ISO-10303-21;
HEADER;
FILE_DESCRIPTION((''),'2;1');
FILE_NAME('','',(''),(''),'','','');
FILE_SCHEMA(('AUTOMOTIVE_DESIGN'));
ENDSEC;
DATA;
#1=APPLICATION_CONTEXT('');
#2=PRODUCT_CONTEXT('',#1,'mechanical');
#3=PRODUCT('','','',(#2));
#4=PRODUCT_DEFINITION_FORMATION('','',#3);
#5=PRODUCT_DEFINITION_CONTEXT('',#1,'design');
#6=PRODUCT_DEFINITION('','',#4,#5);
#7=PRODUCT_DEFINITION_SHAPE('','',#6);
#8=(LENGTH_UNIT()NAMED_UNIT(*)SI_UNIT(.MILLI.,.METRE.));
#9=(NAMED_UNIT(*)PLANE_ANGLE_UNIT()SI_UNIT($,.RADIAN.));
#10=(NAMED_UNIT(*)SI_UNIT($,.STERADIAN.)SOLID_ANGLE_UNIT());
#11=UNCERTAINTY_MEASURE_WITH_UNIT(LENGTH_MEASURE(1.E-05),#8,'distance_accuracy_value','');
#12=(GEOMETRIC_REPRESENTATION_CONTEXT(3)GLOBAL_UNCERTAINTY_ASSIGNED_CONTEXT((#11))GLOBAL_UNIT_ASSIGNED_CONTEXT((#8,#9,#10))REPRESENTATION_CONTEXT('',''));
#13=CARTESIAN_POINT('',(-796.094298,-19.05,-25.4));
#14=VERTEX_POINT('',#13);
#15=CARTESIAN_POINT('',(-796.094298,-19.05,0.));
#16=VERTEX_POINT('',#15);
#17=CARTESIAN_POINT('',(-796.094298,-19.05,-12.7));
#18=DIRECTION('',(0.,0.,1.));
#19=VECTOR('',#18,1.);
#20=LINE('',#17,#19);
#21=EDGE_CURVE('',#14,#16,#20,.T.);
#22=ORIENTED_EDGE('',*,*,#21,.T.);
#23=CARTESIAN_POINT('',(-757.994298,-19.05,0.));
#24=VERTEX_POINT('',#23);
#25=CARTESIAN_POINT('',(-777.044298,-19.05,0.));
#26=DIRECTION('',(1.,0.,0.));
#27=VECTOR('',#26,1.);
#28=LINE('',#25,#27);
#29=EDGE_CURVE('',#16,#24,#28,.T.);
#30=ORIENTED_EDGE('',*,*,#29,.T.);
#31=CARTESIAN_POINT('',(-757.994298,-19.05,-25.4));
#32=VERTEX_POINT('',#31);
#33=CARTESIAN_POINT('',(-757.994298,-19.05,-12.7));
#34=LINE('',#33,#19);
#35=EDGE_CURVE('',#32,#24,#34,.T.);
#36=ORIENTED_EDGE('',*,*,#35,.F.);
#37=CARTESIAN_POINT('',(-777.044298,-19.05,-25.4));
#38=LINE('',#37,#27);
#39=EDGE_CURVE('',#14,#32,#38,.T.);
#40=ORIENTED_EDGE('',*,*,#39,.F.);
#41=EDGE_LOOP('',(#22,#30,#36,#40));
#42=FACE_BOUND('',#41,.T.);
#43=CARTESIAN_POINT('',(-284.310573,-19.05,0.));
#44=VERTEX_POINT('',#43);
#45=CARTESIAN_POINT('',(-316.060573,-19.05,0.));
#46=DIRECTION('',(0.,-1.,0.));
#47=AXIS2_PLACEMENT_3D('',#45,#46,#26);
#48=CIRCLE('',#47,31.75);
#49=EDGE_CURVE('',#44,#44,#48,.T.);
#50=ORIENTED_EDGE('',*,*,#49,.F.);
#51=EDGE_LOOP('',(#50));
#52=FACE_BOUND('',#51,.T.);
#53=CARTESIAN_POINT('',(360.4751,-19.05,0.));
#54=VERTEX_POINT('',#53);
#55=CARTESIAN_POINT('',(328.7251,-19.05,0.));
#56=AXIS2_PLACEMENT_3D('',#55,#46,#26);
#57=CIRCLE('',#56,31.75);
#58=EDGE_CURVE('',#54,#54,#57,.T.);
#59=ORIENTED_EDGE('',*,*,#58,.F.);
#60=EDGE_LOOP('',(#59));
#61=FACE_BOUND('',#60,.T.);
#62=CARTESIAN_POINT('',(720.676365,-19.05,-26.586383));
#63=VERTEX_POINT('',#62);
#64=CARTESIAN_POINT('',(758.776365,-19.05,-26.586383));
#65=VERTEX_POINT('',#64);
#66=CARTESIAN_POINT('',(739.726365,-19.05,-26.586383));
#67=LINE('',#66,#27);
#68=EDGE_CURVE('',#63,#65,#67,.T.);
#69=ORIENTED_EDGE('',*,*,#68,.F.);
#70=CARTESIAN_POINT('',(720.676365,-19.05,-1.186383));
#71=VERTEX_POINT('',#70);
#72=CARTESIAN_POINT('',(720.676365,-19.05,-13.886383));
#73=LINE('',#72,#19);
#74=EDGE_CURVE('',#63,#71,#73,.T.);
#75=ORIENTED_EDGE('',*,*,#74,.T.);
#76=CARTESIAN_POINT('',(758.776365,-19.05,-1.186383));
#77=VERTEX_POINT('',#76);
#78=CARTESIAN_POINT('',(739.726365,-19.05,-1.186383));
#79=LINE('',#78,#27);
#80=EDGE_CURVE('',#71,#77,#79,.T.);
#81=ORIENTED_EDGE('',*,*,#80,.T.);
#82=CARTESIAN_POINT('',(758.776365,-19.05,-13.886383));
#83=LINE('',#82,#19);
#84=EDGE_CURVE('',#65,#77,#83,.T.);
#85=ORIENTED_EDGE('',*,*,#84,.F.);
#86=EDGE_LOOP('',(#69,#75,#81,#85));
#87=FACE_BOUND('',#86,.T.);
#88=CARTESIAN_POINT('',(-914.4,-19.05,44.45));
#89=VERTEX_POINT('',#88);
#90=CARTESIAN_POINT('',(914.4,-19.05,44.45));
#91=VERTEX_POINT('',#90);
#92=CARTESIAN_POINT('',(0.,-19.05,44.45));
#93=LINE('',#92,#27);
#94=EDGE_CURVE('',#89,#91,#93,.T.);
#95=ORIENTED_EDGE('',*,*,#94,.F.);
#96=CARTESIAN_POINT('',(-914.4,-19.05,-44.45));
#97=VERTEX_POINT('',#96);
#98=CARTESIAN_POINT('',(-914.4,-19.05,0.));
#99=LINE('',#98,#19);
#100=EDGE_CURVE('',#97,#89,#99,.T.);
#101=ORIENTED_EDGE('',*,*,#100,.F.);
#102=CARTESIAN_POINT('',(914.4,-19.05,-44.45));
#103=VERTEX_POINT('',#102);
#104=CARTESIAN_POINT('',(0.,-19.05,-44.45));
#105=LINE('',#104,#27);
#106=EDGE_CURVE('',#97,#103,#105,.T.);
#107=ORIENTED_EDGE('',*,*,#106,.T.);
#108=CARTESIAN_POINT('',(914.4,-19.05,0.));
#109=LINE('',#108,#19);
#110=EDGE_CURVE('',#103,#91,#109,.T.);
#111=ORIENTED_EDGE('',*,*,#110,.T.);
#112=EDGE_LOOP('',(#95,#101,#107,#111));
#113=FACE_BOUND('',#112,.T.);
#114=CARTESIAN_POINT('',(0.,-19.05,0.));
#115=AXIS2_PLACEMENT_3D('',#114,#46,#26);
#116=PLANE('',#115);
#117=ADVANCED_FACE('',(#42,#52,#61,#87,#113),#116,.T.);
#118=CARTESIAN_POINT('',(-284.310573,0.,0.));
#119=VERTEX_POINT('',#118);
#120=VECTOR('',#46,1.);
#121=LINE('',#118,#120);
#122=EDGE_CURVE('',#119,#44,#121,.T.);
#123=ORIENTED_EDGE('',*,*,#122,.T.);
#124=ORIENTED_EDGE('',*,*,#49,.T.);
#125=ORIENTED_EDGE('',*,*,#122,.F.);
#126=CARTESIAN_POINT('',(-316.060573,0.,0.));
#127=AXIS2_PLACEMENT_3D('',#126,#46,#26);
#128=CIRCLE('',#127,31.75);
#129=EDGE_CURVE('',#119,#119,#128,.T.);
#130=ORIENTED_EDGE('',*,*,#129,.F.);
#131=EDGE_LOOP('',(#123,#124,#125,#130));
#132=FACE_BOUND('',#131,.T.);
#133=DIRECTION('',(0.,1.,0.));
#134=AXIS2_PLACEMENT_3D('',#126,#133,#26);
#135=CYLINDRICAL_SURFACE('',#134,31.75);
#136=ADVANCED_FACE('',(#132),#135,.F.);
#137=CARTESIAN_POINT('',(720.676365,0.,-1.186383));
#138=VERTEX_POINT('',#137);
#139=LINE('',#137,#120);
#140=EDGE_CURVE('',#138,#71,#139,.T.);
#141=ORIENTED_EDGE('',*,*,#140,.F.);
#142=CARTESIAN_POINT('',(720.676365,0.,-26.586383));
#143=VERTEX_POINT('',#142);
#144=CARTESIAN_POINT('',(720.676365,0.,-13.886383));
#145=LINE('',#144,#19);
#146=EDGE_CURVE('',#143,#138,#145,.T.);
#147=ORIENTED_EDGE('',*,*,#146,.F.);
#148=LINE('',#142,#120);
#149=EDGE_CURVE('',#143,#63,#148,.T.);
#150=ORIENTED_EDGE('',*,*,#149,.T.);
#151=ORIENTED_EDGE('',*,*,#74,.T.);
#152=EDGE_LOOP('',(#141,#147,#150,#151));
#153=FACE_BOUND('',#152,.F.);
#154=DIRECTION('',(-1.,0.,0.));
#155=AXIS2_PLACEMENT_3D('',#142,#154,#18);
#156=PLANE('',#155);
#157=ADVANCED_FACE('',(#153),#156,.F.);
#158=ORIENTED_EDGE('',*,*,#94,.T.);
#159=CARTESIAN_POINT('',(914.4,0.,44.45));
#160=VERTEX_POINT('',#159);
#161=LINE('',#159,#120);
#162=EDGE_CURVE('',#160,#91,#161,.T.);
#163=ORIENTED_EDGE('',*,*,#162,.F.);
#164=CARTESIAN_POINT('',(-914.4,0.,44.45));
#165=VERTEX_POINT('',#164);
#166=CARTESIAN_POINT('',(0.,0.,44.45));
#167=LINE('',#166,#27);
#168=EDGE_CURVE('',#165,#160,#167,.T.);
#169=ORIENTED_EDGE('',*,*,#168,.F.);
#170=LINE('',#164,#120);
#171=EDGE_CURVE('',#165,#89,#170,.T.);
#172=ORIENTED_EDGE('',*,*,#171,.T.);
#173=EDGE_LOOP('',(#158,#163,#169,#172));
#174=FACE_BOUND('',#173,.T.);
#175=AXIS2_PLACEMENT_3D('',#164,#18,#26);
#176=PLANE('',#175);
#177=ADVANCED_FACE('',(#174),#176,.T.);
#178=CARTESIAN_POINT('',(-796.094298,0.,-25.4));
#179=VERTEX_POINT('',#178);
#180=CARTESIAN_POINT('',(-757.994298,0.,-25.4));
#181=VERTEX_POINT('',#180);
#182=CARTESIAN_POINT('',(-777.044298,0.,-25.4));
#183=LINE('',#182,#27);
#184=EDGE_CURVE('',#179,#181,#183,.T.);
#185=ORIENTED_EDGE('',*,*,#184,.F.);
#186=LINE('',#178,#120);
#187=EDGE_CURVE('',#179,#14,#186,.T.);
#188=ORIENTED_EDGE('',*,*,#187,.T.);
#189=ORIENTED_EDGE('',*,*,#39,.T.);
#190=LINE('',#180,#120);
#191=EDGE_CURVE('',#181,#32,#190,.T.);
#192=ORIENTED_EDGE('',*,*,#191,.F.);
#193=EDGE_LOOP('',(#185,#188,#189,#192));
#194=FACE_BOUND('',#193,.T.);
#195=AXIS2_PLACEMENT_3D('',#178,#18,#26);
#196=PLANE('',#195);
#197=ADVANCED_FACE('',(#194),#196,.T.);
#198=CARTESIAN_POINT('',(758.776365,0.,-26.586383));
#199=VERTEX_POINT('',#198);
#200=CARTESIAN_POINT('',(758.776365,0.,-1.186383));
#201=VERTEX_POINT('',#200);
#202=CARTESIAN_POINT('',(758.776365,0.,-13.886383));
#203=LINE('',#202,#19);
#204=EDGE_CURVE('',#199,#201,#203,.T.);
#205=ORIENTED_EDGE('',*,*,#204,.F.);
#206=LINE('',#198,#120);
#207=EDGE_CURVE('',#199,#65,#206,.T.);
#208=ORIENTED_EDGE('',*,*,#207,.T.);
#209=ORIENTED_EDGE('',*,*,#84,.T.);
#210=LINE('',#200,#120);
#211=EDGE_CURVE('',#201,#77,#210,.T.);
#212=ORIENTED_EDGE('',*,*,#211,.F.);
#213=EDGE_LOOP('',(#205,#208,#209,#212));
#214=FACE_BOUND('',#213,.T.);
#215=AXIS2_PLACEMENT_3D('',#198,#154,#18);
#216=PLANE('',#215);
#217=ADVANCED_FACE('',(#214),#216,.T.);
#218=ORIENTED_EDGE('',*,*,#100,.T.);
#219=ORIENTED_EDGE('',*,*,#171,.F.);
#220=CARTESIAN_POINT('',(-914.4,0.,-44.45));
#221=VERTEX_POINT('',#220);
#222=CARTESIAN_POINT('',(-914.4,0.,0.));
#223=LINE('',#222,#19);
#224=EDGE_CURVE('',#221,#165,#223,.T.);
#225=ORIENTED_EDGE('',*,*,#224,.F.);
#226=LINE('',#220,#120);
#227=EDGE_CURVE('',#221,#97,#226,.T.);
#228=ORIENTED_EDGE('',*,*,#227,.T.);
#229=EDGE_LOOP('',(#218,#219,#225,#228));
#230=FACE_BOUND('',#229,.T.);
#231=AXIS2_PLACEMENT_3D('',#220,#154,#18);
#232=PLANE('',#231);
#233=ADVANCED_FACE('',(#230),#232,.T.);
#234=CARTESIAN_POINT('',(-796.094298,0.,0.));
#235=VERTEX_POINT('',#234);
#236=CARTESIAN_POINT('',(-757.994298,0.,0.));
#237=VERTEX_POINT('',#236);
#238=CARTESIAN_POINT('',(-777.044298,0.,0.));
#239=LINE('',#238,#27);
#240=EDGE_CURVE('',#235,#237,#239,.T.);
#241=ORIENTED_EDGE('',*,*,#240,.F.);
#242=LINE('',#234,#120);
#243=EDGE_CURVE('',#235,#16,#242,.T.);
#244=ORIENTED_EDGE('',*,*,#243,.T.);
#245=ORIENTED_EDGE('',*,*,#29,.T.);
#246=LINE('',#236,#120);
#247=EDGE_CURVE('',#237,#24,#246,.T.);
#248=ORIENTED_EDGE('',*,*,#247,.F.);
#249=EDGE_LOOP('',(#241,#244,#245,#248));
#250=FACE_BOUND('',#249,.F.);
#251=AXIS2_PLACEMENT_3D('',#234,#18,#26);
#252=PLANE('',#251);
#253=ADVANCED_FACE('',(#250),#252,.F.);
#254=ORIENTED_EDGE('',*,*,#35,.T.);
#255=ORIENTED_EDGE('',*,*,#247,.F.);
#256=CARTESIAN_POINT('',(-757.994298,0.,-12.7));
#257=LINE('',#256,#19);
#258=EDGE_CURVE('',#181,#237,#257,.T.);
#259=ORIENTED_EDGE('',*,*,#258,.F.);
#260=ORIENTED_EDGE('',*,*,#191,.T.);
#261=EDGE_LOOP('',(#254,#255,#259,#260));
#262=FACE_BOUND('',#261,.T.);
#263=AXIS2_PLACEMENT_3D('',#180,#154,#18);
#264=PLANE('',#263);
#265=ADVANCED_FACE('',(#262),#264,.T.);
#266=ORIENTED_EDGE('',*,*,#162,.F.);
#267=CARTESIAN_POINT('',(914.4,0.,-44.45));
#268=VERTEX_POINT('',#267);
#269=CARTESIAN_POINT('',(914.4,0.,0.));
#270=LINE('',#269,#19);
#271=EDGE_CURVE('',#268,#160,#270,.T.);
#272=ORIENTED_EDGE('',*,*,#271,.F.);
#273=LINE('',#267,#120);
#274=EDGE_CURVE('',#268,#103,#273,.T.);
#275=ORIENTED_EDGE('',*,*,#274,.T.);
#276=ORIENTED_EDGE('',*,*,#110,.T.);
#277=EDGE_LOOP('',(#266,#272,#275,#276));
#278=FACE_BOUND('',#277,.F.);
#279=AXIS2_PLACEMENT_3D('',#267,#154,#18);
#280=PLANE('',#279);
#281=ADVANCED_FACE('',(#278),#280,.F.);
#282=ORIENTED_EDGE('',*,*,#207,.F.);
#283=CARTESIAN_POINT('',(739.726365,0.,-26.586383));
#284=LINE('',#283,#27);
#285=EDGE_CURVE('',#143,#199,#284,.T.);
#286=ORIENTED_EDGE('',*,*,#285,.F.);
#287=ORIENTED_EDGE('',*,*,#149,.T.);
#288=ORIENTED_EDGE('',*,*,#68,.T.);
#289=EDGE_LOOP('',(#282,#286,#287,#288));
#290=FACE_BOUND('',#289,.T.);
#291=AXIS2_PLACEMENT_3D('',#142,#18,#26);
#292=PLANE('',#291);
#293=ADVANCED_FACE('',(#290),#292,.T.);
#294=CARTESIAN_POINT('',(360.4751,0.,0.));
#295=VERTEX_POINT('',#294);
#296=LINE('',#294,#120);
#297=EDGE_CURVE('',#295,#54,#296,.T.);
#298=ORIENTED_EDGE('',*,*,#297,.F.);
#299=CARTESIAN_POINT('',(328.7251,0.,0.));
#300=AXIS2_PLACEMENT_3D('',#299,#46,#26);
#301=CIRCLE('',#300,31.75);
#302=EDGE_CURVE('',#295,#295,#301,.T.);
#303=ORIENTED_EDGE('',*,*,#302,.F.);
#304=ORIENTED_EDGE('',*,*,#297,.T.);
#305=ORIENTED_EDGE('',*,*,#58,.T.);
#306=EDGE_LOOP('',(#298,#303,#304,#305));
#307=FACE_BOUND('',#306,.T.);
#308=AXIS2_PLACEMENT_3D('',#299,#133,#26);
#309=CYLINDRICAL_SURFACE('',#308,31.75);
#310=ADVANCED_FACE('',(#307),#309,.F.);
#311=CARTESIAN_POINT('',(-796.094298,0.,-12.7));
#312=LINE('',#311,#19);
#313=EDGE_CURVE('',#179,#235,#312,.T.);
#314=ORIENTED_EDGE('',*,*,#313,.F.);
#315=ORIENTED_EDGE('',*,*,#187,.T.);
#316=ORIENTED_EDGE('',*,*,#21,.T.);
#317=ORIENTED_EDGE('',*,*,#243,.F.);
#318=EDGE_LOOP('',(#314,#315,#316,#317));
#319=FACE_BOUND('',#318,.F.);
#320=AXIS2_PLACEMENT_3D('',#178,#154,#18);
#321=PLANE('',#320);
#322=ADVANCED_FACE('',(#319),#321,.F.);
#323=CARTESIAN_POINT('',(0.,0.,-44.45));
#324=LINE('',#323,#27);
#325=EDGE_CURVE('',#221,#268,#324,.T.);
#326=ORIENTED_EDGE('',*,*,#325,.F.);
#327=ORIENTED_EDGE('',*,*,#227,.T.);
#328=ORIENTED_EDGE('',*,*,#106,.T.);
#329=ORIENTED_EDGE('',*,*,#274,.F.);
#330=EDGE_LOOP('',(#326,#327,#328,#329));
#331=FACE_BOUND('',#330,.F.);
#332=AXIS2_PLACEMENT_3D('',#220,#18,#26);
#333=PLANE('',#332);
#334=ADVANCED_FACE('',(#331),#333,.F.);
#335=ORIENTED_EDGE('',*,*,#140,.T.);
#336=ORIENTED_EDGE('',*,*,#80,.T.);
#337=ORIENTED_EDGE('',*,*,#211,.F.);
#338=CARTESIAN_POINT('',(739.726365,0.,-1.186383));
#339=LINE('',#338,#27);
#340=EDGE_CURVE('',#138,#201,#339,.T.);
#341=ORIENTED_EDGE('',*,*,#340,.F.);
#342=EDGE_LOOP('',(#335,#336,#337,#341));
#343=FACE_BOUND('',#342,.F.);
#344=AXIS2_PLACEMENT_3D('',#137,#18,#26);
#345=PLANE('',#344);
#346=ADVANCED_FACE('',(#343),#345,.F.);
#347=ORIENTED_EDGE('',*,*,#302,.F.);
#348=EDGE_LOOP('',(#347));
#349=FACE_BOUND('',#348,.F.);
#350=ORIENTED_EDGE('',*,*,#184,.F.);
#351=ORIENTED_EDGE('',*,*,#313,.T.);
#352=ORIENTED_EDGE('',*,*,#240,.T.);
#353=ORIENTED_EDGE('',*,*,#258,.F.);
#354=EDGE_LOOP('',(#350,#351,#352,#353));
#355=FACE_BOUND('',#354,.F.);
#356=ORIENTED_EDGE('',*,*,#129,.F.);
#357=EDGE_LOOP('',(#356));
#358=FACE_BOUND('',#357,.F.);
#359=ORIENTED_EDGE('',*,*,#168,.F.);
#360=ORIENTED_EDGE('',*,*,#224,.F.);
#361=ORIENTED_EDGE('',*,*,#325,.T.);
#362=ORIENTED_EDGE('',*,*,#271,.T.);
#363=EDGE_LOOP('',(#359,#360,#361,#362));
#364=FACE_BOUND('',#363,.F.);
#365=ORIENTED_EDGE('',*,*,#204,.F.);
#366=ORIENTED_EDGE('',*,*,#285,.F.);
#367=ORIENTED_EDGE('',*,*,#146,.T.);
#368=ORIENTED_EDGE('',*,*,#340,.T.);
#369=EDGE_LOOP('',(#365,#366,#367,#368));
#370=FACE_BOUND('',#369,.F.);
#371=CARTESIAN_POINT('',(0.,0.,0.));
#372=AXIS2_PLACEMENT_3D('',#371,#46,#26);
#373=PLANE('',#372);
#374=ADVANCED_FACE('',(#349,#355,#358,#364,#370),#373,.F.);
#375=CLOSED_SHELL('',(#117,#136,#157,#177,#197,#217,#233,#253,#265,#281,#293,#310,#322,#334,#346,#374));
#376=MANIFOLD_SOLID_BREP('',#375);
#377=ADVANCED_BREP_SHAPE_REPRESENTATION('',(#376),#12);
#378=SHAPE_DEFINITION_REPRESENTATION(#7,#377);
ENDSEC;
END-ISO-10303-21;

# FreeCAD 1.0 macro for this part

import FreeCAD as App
import Part
import Sketcher
Q = App.Units.Quantity

doc = App.newDocument("Part")
params = doc.addObject("Spreadsheet::Sheet", "Params")
for row, (alias, value) in enumerate([
    ("sketch1_diameter", "2.5 in"),
    ("sketch1_width", "72 in"),
    ("sketch1_height", "1 in"),
    ("sketch1_width2", "1.5 in"),
    ("sketch1_height2", "3.5 in"),
    ("pad1_length", "0.75 in"),
], start=1):
    params.set(f"A{row}", alias)
    params.set(f"B{row}", "=" + value)
    params.setAlias(f"B{row}", alias)

body = doc.addObject("PartDesign::Body", "Body")

sketch1 = doc.addObject("Sketcher::SketchObject", "Sketch")
body.addObject(sketch1)
sketch1.AttachmentSupport = (doc.XZ_Plane, [""])
sketch1.MapMode = "FlatFace"
sketch1.addGeometry([
    Part.LineSegment(App.Vector(-914, 44, 0), App.Vector(-914, -44, 0)),
    Part.LineSegment(App.Vector(-914, -44, 0), App.Vector(914, -44, 0)),
    Part.LineSegment(App.Vector(914, -44, 0), App.Vector(914, 44, 0)),
    Part.LineSegment(App.Vector(914, 44, 0), App.Vector(-914, 44, 0)),
    Part.LineSegment(App.Vector(-758, -25, 0), App.Vector(-796, -25, 0)),
    Part.LineSegment(App.Vector(-796, -25, 0), App.Vector(-796, 0, 0)),
    Part.LineSegment(App.Vector(-796, 0, 0), App.Vector(-758, 0, 0)),
    Part.LineSegment(App.Vector(-758, 0, 0), App.Vector(-758, -25, 0)),
    Part.LineSegment(App.Vector(759, -27, 0), App.Vector(721, -27, 0)),
    Part.LineSegment(App.Vector(721, -27, 0), App.Vector(721, -1, 0)),
    Part.LineSegment(App.Vector(721, -1, 0), App.Vector(759, -1, 0)),
    Part.LineSegment(App.Vector(759, -1, 0), App.Vector(759, -27, 0)),
    Part.Circle(App.Vector(-316, 0, 0), App.Vector(0, 0, 1), 32),
    Part.Circle(App.Vector(329, 0, 0), App.Vector(0, 0, 1), 32),
], False)
sketch1.addConstraint([
    Sketcher.Constraint("Coincident", 0, 2, 1, 1),
    Sketcher.Constraint("Coincident", 1, 2, 2, 1),
    Sketcher.Constraint("Coincident", 2, 2, 3, 1),
    Sketcher.Constraint("Coincident", 3, 2, 0, 1),
    Sketcher.Constraint("Coincident", 4, 2, 5, 1),
    Sketcher.Constraint("Coincident", 5, 2, 6, 1),
    Sketcher.Constraint("Coincident", 6, 2, 7, 1),
    Sketcher.Constraint("Coincident", 7, 2, 4, 1),
    Sketcher.Constraint("Coincident", 8, 2, 9, 1),
    Sketcher.Constraint("Coincident", 9, 2, 10, 1),
    Sketcher.Constraint("Coincident", 10, 2, 11, 1),
    Sketcher.Constraint("Coincident", 11, 2, 8, 1),
    Sketcher.Constraint("Vertical", 0),
    Sketcher.Constraint("Horizontal", 1),
    Sketcher.Constraint("Vertical", 2),
    Sketcher.Constraint("Horizontal", 3),
    Sketcher.Constraint("Horizontal", 4),
    Sketcher.Constraint("Vertical", 5),
    Sketcher.Constraint("Horizontal", 6),
    Sketcher.Constraint("Vertical", 7),
    Sketcher.Constraint("Horizontal", 8),
    Sketcher.Constraint("Vertical", 9),
    Sketcher.Constraint("Horizontal", 10),
    Sketcher.Constraint("Vertical", 11),
    Sketcher.Constraint("Equal", 12, 13),
    Sketcher.Constraint("Symmetric", 0, 2, 2, 2, -1, 1),
    Sketcher.Constraint("PointOnObject", 12, 3, -1),
    Sketcher.Constraint("PointOnObject", 13, 3, -1),
    Sketcher.Constraint("PointOnObject", 5, 2, -1),
    Sketcher.Constraint("Equal", 6, 8),
    Sketcher.Constraint("Equal", 7, 9),
    Sketcher.Constraint("Diameter", 12, Q("2.5 in")),
    Sketcher.Constraint("DistanceX", 1, 1, 1, 2, Q("72 in")),
    Sketcher.Constraint("DistanceY", 5, 1, 5, 2, Q("1 in")),
    Sketcher.Constraint("DistanceX", 4, 2, 4, 1, Q("1.5 in")),
    Sketcher.Constraint("DistanceY", 0, 2, 0, 1, Q("3.5 in")),
    Sketcher.Constraint("DistanceX", -1, 1, 13, 3, Q("328.7251 mm")),
    Sketcher.Constraint("DistanceX", 4, 2, -1, 1, Q("796.094298 mm")),
    Sketcher.Constraint("DistanceX", 12, 3, 8, 2, Q("1036.736938 mm")),
    Sketcher.Constraint("DistanceX", 12, 3, -1, 1, Q("316.060573 mm")),
    Sketcher.Constraint("DistanceY", 8, 2, -1, 1, Q("26.586383 mm")),
])
sketch1.setExpression("Constraints[31]", "Params.sketch1_diameter")
sketch1.setExpression("Constraints[32]", "Params.sketch1_width")
sketch1.setExpression("Constraints[33]", "Params.sketch1_height")
sketch1.setExpression("Constraints[34]", "Params.sketch1_width2")
sketch1.setExpression("Constraints[35]", "Params.sketch1_height2")
pad1 = doc.addObject("PartDesign::Pad", "Pad")
body.addObject(pad1)
pad1.Profile = sketch1
pad1.setExpression("Length", "Params.pad1_length")

doc.recompute()
